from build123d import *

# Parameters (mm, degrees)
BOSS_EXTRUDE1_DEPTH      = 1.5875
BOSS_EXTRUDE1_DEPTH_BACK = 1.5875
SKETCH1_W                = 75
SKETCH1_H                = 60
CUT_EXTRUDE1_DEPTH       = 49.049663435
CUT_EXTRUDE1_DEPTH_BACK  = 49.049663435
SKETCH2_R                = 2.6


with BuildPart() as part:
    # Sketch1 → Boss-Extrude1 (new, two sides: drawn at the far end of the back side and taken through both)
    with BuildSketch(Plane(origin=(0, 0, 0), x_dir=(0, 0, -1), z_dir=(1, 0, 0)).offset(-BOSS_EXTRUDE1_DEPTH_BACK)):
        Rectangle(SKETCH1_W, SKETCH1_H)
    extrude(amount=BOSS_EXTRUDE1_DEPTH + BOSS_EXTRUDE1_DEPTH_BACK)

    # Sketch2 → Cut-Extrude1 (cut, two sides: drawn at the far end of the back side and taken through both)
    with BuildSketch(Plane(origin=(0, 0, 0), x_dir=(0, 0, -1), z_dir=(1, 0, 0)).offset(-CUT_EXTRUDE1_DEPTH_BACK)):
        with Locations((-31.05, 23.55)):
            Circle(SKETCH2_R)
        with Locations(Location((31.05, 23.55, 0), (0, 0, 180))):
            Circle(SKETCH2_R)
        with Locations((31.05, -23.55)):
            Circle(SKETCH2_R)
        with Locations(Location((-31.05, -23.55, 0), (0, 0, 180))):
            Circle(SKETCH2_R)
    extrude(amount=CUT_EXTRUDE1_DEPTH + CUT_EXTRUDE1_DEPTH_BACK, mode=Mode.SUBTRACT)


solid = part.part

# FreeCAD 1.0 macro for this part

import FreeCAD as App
import Part
import Sketcher

V = App.Vector

doc = App.newDocument("Part")
body = doc.addObject("PartDesign::Body", "Body")

sketch1 = body.newObject("Sketcher::SketchObject", "Sketch")
sketch1.AttachmentSupport = (doc.getObject("YZ_Plane"), [""])
sketch1.MapMode = "FlatFace"
sketch1.addGeometry([
    Part.LineSegment(V(30, 38, 0), V(-30, 38, 0)),
    Part.LineSegment(V(-30, 38, 0), V(-30, -38, 0)),
    Part.LineSegment(V(-30, -38, 0), V(30, -38, 0)),
    Part.LineSegment(V(30, -38, 0), V(30, 38, 0)),
], False)
sketch1.addConstraint([
    Sketcher.Constraint("Coincident", 0, 2, 1, 1),
    Sketcher.Constraint("Coincident", 1, 2, 2, 1),
    Sketcher.Constraint("Coincident", 2, 2, 3, 1),
    Sketcher.Constraint("Coincident", 3, 2, 0, 1),
    Sketcher.Constraint("Horizontal", 0),
    Sketcher.Constraint("Vertical", 1),
    Sketcher.Constraint("Horizontal", 2),
    Sketcher.Constraint("Vertical", 3),
    Sketcher.Constraint("Symmetric", 0, 2, 2, 2, -1, 1),
    Sketcher.Constraint("DistanceX", 0, 2, 0, 1, 60.0),
    Sketcher.Constraint("DistanceY", 1, 2, 1, 1, 75.0),
])
pad1 = body.newObject("PartDesign::Pad", "Pad")
pad1.Profile = sketch1
pad1.Type = "TwoLengths"
pad1.Length = 1.5875
pad1.Length2 = 1.5875

sketch2 = body.newObject("Sketcher::SketchObject", "Sketch001")
sketch2.AttachmentSupport = (doc.getObject("YZ_Plane"), [""])
sketch2.MapMode = "FlatFace"
sketch2.addGeometry([
    Part.Circle(V(23.6, 31.1, 0), V(0, 0, 1), 2.6),
    Part.Circle(V(23.6, -31.1, 0), V(0, 0, 1), 2.6),
    Part.Circle(V(-23.6, -31.1, 0), V(0, 0, 1), 2.6),
    Part.Circle(V(-23.6, 31.1, 0), V(0, 0, 1), 2.6),
], False)
sketch2.addConstraint([
    Sketcher.Constraint("Equal", 0, 1),
    Sketcher.Constraint("Equal", 1, 2),
    Sketcher.Constraint("Equal", 2, 3),
    Sketcher.Constraint("Symmetric", 0, 3, 2, 3, -1, 1),
    Sketcher.Constraint("Symmetric", 1, 3, 3, 3, -1, 1),
    Sketcher.Constraint("Symmetric", 1, 3, 2, 3, -2),
    Sketcher.Constraint("Diameter", 0, 5.2),
    Sketcher.Constraint("DistanceY", 1, 3, 0, 3, 62.1),
    Sketcher.Constraint("DistanceX", 2, 3, 1, 3, 47.1),
])
pocket1 = body.newObject("PartDesign::Pocket", "Pocket")
pocket1.Profile = sketch2
pocket1.Type = "ThroughAll"
pocket1.Midplane = True

doc.recompute()
